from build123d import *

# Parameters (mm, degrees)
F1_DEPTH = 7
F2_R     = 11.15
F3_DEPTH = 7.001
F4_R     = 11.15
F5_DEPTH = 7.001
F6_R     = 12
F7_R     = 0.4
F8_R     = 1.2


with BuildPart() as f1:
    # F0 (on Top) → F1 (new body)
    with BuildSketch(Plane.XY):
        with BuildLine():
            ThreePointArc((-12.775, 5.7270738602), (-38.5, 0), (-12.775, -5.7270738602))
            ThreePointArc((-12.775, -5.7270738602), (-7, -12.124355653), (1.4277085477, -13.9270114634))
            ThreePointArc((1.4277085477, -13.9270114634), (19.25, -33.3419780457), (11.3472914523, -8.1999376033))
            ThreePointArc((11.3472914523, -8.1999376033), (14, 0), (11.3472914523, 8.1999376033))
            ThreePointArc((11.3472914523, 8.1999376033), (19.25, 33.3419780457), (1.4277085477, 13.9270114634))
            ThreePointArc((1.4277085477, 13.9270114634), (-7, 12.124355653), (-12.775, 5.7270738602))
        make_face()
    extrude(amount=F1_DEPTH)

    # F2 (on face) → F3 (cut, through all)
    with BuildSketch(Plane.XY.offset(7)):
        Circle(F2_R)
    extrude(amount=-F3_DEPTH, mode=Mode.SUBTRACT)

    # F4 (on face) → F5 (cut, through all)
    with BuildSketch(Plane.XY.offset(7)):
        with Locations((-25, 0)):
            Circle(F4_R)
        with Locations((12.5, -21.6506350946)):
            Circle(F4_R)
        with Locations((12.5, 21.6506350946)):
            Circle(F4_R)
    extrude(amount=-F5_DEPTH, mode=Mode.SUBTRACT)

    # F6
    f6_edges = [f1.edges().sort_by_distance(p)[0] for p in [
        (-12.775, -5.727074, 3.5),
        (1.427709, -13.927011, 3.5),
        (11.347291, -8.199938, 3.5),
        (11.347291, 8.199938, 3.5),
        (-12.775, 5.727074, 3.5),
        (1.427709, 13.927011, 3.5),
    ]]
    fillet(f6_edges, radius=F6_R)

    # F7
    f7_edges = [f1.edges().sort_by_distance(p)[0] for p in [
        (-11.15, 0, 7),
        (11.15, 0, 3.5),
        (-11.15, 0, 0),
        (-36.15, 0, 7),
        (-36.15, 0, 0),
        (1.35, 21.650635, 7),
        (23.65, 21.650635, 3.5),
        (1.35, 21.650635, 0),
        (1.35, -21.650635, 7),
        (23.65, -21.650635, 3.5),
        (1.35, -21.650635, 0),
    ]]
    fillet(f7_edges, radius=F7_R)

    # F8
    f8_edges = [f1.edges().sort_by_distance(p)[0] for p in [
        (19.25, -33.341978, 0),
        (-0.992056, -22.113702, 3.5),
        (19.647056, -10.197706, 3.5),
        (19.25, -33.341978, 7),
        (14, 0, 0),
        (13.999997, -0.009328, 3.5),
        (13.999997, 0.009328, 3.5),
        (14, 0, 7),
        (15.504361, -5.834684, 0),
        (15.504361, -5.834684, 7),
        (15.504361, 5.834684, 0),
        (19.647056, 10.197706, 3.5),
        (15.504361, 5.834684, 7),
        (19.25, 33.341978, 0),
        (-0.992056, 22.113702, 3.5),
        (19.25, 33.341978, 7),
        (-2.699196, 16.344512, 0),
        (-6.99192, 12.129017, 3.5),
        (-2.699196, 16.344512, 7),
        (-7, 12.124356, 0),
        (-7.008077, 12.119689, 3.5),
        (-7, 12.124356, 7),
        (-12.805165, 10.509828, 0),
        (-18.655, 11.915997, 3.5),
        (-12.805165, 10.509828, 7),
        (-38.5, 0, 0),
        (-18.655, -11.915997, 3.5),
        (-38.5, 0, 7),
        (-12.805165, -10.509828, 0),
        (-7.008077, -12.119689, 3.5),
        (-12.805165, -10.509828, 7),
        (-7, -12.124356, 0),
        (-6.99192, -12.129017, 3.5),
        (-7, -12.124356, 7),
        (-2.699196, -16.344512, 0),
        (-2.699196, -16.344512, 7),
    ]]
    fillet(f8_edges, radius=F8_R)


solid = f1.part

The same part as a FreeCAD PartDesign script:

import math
import FreeCAD as App
import Part
import Sketcher
Q = App.Units.Quantity


def edges_at(feature, points):
    """Names of the edges that pass closest to the given points."""
    edges = feature.Shape.Edges
    near = lambda p: min(range(len(edges)), key=lambda i: edges[i].distToShape(Part.Vertex(*p))[0])
    return sorted({f"Edge{near(p) + 1}" for p in points})

doc = App.newDocument("Part")
body = doc.addObject("PartDesign::Body", "Body")

# Sketch on XY plane
sketch1 = doc.addObject("Sketcher::SketchObject", "Sketch")
body.addObject(sketch1)
sketch1.AttachmentSupport = (doc.XY_Plane, [""])
sketch1.MapMode = "FlatFace"
sketch1.addGeometry([
    Part.ArcOfCircle(Part.Circle(App.Vector(-25, 0, 0), App.Vector(0, 0, 1), 14), math.radians(25), math.radians(335)),  # 0
    Part.ArcOfCircle(Part.Circle(App.Vector(0, 0, 0), App.Vector(0, 0, 1), 14), math.radians(-156), math.radians(-84)),  # 1
    Part.ArcOfCircle(Part.Circle(App.Vector(12, -22, 0), App.Vector(0, 0, 1), 14), math.radians(145), math.radians(455)),  # 2
    Part.ArcOfCircle(Part.Circle(App.Vector(0, 0, 0), App.Vector(0, 0, 1), 14), math.radians(-36), math.radians(36)),  # 3
    Part.ArcOfCircle(Part.Circle(App.Vector(12, 22, 0), App.Vector(0, 0, 1), 14), math.radians(-95), math.radians(215)),  # 4
    Part.ArcOfCircle(Part.Circle(App.Vector(0, 0, 0), App.Vector(0, 0, 1), 14), math.radians(84), math.radians(156)),  # 5
], False)
sketch1.addConstraint([
    Sketcher.Constraint("Coincident", 0, 2, 1, 1),
    Sketcher.Constraint("Coincident", 1, 2, 2, 1),
    Sketcher.Constraint("Coincident", 2, 2, 3, 1),
    Sketcher.Constraint("Coincident", 3, 2, 4, 1),
    Sketcher.Constraint("Coincident", 4, 2, 5, 1),
    Sketcher.Constraint("Coincident", 5, 2, 0, 1),
    Sketcher.Constraint("Coincident", 1, 3, -1, 1),
    Sketcher.Constraint("Coincident", 3, 3, -1, 1),
    Sketcher.Constraint("Coincident", 5, 3, -1, 1),
    Sketcher.Constraint("Equal", 0, 2),
    Sketcher.Constraint("Equal", 1, 3),
    Sketcher.Constraint("Equal", 2, 4),
    Sketcher.Constraint("Equal", 3, 5),
    Sketcher.Constraint("Symmetric", 2, 3, 4, 3, -1),
    Sketcher.Constraint("PointOnObject", 0, 3, -1),
    Sketcher.Constraint("Radius", 1, Q("14 mm")),
    Sketcher.Constraint("Radius", 0, Q("13.5 mm")),
    Sketcher.Constraint("DistanceX", 0, 3, -1, 1, Q("25 mm")),
    Sketcher.Constraint("DistanceX", -1, 1, 2, 3, Q("12.5 mm")),
    Sketcher.Constraint("DistanceX", -1, 1, 1, 2, Q("1.427709 mm")),
])
pad1 = doc.addObject("PartDesign::Pad", "Pad")
body.addObject(pad1)
pad1.Profile = sketch1
pad1.Length = 7

# Sketch on XY plane
sketch2 = doc.addObject("Sketcher::SketchObject", "Sketch001")
body.addObject(sketch2)
sketch2.AttachmentSupport = (doc.XY_Plane, [""])
sketch2.MapMode = "FlatFace"
sketch2.AttachmentOffset = App.Placement(App.Vector(0, 0, 7), App.Rotation())
sketch2.addGeometry(Part.Circle(App.Vector(0, 0, 0), App.Vector(0, 0, 1), 11), False)
sketch2.addConstraint([
    Sketcher.Constraint("Coincident", 0, 3, -1, 1),
    Sketcher.Constraint("Diameter", 0, Q("22.3 mm")),
])
pocket1 = doc.addObject("PartDesign::Pocket", "Pocket")
body.addObject(pocket1)
pocket1.Profile = sketch2
pocket1.Type = "ThroughAll"

# Sketch on XY plane
sketch3 = doc.addObject("Sketcher::SketchObject", "Sketch002")
body.addObject(sketch3)
sketch3.AttachmentSupport = (doc.XY_Plane, [""])
sketch3.MapMode = "FlatFace"
sketch3.AttachmentOffset = App.Placement(App.Vector(0, 0, 7), App.Rotation())
sketch3.addGeometry([
    Part.Circle(App.Vector(-25, 0, 0), App.Vector(0, 0, 1), 11),
    Part.Circle(App.Vector(12, -22, 0), App.Vector(0, 0, 1), 11),
    Part.Circle(App.Vector(12, 22, 0), App.Vector(0, 0, 1), 11),
], False)
sketch3.addConstraint([
    Sketcher.Constraint("Equal", 0, 1),
    Sketcher.Constraint("Equal", 1, 2),
    Sketcher.Constraint("Symmetric", 1, 3, 2, 3, -1),
    Sketcher.Constraint("PointOnObject", 0, 3, -1),
    Sketcher.Constraint("Diameter", 0, Q("22.3 mm")),
    Sketcher.Constraint("DistanceX", 0, 3, -1, 1, Q("25 mm")),
    Sketcher.Constraint("DistanceX", -1, 1, 1, 3, Q("12.5 mm")),
    Sketcher.Constraint("DistanceY", 1, 3, 2, 3, Q("43.30127 mm")),
])
pocket2 = doc.addObject("PartDesign::Pocket", "Pocket001")
body.addObject(pocket2)
pocket2.Profile = sketch3
pocket2.Type = "ThroughAll"
doc.recompute()

fillet = doc.addObject("PartDesign::Fillet", "Fillet")
body.addObject(fillet)
fillet.Base = (pocket2, edges_at(pocket2, [
    (-12.775, -5.727, 3.5),
    (1.428, -13.927, 3.5),
    (11.347, -8.2, 3.5),
    (11.347, 8.2, 3.5),
    (-12.775, 5.727, 3.5),
    (1.428, 13.927, 3.5),
]))
fillet.Radius = 12
doc.recompute()

fillet2 = doc.addObject("PartDesign::Fillet", "Fillet001")
body.addObject(fillet2)
fillet2.Base = (fillet, edges_at(fillet, [
    (-11.15, 0, 7),
    (11.15, 0, 3.5),
    (-11.15, 0, 0),
    (-36.15, 0, 7),
    (-36.15, 0, 0),
    (1.35, 21.651, 7),
    (23.65, 21.651, 3.5),
    (1.35, 21.651, 0),
    (1.35, -21.651, 7),
    (23.65, -21.651, 3.5),
    (1.35, -21.651, 0),
]))
fillet2.Radius = 0.4
doc.recompute()

fillet3 = doc.addObject("PartDesign::Fillet", "Fillet002")
body.addObject(fillet3)
fillet3.Base = (fillet2, edges_at(fillet2, [
    (19.25, -33.342, 0),
    (-0.992, -22.114, 3.5),
    (19.647, -10.198, 3.5),
    (19.25, -33.342, 7),
    (14, 0, 0),
    (14, -0.009, 3.5),
    (14, 0.009, 3.5),
    (14, 0, 7),
    (15.504, -5.835, 0),
    (15.504, -5.835, 7),
    (15.504, 5.835, 0),
    (19.647, 10.198, 3.5),
    (15.504, 5.835, 7),
    (19.25, 33.342, 0),
    (-0.992, 22.114, 3.5),
    (19.25, 33.342, 7),
    (-2.699, 16.345, 0),
    (-6.992, 12.129, 3.5),
    (-2.699, 16.345, 7),
    (-7, 12.124, 0),
    (-7.008, 12.12, 3.5),
    (-7, 12.124, 7),
    (-12.805, 10.51, 0),
    (-18.655, 11.916, 3.5),
    (-12.805, 10.51, 7),
    (-38.5, 0, 0),
    (-18.655, -11.916, 3.5),
    (-38.5, 0, 7),
    (-12.805, -10.51, 0),
    (-7.008, -12.12, 3.5),
    (-12.805, -10.51, 7),
    (-7, -12.124, 0),
    (-6.992, -12.129, 3.5),
    (-7, -12.124, 7),
    (-2.699, -16.345, 0),
    (-2.699, -16.345, 7),
]))
fillet3.Radius = 1.2

doc.recompute()
